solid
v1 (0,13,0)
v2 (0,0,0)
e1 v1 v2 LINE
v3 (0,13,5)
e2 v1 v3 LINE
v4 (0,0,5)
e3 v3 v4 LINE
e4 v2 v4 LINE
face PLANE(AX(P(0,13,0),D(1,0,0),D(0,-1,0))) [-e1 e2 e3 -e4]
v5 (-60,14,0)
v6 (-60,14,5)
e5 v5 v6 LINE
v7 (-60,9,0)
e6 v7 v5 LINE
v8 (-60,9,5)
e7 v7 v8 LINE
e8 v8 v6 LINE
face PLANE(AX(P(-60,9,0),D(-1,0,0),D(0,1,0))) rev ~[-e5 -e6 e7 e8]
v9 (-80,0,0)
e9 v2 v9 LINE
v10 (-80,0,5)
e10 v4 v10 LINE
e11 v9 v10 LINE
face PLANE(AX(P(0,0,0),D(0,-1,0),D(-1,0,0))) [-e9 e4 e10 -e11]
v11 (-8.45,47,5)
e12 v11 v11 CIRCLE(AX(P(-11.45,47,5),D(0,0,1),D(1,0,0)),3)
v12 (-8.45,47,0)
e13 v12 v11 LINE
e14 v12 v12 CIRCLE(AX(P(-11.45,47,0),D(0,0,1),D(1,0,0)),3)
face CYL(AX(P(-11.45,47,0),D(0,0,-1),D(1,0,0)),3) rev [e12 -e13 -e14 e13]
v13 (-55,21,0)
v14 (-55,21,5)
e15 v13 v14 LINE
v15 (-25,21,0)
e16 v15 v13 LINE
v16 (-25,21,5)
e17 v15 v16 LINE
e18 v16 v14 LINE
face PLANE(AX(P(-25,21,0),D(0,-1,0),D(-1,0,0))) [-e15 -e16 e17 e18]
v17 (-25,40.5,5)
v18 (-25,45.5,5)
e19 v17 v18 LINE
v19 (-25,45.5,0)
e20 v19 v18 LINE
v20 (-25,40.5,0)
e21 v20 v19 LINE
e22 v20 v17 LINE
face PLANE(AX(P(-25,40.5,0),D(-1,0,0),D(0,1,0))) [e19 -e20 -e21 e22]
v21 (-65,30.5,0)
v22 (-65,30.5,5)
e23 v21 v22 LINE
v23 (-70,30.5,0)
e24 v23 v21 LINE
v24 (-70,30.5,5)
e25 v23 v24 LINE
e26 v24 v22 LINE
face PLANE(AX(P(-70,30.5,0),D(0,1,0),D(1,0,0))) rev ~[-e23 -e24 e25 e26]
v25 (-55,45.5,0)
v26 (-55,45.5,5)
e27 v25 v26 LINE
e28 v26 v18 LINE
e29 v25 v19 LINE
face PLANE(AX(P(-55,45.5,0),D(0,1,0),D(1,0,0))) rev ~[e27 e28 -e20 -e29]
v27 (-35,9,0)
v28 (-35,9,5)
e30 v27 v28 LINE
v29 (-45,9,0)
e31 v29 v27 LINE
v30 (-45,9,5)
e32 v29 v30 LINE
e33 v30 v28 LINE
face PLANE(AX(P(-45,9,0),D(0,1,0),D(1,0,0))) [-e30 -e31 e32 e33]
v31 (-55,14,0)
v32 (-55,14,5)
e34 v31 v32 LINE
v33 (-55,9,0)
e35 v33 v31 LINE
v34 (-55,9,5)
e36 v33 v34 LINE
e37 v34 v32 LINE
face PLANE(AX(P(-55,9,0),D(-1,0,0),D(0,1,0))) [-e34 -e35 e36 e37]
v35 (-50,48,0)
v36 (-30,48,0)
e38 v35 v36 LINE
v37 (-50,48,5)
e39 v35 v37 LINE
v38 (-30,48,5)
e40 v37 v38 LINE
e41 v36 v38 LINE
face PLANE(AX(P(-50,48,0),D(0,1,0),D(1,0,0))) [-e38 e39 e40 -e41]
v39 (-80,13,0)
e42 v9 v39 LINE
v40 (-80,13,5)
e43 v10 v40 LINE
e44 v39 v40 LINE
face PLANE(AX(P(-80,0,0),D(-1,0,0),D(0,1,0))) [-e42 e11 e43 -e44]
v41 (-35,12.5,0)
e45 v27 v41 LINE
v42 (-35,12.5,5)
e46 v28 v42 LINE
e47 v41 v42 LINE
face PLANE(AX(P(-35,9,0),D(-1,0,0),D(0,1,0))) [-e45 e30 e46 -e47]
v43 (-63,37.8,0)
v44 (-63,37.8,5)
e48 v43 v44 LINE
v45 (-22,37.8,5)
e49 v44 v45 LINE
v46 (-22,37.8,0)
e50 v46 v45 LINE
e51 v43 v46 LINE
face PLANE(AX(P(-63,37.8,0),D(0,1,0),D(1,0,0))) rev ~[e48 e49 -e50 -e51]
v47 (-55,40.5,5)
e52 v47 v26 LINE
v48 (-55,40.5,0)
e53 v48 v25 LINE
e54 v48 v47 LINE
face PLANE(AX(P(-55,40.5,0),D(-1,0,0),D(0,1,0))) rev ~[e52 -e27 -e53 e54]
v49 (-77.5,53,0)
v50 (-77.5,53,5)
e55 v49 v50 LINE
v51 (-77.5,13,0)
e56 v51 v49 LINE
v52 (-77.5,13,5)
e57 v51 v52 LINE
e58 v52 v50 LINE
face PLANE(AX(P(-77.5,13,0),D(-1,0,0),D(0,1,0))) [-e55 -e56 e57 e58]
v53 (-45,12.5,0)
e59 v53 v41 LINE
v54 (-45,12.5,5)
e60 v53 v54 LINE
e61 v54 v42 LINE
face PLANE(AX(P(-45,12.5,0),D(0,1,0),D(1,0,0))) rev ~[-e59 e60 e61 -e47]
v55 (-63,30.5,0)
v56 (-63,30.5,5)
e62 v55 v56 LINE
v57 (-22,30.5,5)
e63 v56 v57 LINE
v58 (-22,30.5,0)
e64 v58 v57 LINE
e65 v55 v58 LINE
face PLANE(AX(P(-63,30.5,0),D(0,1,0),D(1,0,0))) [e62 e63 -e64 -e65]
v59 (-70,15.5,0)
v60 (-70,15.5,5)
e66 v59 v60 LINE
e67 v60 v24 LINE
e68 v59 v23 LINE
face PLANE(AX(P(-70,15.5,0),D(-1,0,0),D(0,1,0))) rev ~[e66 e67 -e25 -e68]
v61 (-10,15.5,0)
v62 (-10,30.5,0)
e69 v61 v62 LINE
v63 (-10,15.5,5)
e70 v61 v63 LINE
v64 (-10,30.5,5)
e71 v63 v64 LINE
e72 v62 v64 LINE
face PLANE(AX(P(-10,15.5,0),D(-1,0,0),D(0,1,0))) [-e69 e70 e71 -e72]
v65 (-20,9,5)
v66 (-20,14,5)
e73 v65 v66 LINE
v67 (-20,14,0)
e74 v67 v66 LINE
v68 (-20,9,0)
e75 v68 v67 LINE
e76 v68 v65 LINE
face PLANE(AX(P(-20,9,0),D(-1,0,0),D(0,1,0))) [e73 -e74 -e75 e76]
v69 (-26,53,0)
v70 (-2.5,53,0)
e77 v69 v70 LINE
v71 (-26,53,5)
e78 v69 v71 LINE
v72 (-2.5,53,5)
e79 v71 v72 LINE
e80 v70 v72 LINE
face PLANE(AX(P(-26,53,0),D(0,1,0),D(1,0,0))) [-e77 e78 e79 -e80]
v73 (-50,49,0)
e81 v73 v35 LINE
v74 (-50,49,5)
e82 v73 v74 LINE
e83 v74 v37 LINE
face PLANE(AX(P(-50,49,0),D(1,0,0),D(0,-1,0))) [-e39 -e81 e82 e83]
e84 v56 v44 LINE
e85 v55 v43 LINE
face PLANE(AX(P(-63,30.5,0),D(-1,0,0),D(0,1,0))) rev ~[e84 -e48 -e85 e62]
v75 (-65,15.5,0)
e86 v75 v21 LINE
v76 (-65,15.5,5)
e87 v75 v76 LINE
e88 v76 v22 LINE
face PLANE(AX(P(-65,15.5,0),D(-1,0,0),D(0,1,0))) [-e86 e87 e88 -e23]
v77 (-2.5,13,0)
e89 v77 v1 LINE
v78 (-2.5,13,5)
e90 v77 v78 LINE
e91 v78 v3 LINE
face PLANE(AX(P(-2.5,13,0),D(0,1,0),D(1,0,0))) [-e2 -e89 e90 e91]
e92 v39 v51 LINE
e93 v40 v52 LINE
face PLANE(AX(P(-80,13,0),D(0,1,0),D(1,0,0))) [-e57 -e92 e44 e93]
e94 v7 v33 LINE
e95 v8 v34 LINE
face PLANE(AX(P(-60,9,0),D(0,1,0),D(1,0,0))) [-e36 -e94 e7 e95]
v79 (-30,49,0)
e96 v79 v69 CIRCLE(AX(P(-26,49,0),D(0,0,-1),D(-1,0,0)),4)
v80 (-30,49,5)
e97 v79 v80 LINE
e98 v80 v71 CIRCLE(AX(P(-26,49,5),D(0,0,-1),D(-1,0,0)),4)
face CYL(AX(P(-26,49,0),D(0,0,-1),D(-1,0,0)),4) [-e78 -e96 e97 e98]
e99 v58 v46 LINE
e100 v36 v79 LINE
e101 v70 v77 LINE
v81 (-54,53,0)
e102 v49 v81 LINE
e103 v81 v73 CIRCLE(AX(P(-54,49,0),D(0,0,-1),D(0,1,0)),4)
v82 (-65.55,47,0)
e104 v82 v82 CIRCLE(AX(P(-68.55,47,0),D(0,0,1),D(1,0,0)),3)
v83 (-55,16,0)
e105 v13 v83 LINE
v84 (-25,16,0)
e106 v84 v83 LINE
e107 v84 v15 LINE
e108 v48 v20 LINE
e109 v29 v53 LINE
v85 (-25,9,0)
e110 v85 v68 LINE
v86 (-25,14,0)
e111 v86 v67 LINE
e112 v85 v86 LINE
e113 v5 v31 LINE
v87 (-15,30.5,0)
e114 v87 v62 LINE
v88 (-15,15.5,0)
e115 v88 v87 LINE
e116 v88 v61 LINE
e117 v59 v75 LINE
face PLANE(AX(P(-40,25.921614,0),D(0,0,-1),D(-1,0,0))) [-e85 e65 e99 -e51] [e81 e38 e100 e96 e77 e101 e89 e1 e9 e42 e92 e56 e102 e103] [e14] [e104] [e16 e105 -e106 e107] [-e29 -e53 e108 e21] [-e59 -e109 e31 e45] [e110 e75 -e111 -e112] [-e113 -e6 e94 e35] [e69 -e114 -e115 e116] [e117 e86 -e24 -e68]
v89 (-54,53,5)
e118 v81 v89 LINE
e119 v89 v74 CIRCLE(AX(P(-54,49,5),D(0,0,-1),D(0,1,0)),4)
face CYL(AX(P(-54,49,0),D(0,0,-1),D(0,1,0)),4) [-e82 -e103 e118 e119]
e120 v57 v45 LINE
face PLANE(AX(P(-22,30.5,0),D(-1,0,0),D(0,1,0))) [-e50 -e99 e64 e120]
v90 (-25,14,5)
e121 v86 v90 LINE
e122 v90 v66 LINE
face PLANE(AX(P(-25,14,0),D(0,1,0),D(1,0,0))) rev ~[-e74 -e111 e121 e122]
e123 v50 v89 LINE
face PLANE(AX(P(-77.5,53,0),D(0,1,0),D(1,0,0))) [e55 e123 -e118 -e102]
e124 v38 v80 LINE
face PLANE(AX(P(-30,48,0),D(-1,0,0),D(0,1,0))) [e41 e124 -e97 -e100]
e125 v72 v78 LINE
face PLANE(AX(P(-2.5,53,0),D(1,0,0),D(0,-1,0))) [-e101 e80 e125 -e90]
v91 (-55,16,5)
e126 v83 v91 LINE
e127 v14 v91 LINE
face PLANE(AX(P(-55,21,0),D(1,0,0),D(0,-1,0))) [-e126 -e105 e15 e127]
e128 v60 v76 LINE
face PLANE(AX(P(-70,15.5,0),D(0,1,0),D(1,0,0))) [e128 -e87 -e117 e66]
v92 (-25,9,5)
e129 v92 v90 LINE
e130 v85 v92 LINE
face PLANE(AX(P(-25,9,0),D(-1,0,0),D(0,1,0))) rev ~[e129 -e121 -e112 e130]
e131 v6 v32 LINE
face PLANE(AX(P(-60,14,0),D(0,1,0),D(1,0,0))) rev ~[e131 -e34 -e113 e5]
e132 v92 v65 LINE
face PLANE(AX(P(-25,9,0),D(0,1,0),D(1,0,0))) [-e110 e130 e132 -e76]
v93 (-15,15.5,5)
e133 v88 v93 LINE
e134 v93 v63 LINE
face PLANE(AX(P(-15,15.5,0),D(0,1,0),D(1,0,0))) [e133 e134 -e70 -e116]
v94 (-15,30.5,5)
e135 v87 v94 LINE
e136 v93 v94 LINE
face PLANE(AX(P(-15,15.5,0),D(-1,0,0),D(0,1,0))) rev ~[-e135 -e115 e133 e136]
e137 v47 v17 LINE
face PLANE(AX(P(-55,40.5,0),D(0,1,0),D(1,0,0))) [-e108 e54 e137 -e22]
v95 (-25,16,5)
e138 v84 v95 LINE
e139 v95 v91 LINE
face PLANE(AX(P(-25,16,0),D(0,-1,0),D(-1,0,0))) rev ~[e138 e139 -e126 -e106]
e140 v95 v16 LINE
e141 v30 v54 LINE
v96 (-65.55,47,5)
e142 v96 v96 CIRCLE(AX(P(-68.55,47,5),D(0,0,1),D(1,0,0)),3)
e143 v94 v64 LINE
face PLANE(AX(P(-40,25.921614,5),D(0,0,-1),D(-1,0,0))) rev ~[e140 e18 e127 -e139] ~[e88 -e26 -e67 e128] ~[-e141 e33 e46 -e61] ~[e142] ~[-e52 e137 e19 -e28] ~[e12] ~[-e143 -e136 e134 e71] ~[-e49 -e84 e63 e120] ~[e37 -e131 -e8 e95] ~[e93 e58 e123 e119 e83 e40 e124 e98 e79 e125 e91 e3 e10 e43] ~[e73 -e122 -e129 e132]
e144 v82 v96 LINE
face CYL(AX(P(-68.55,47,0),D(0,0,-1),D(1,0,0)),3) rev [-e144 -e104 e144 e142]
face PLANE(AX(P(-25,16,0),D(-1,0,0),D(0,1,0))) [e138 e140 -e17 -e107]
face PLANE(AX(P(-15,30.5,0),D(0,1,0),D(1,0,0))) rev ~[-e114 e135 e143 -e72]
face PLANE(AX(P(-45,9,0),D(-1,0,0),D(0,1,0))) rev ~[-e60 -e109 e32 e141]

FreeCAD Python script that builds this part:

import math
import FreeCAD as App
import Part
import Sketcher

V = App.Vector
Q = App.Units.Quantity


def add_polygon(sketch, points):
    """Adds a closed chain of lines whose ends are joined by coincident constraints."""
    first, n = sketch.GeometryCount, len(points)
    for a, b in zip(points, points[1:] + points[:1]):
        sketch.addGeometry(Part.LineSegment(App.Vector(*a, 0), App.Vector(*b, 0)), False)
    for i in range(n):
        sketch.addConstraint(Sketcher.Constraint("Coincident", first + i, 2, first + (i + 1) % n, 1))

doc = App.newDocument("Part")
body = doc.addObject("PartDesign::Body", "Body")

sketch1 = body.newObject("Sketcher::SketchObject", "Sketch")
sketch1.AttachmentSupport = (doc.getObject("XY_Plane"), [""])
sketch1.MapMode = "FlatFace"
sketch1.addGeometry(Part.LineSegment(V(-80, 0, 0), V(0, 0, 0)), False)
sketch1.addGeometry(Part.LineSegment(V(0, 0, 0), V(0, 13, 0)), False)
sketch1.addGeometry(Part.LineSegment(V(0, 13, 0), V(-2.5, 13, 0)), False)
sketch1.addGeometry(Part.LineSegment(V(-2.5, 13, 0), V(-2.5, 53, 0)), False)
sketch1.addGeometry(Part.LineSegment(V(-2.5, 53, 0), V(-26, 53, 0)), False)
sketch1.addGeometry(Part.ArcOfCircle(Part.Circle(V(-26, 49, 0), V(0, 0, 1), 4), math.radians(90), math.radians(180)), False)
sketch1.addGeometry(Part.LineSegment(V(-30, 49, 0), V(-30, 48, 0)), False)
sketch1.addGeometry(Part.LineSegment(V(-30, 48, 0), V(-50, 48, 0)), False)
sketch1.addGeometry(Part.LineSegment(V(-50, 48, 0), V(-50, 49, 0)), False)
sketch1.addGeometry(Part.ArcOfCircle(Part.Circle(V(-54, 49, 0), V(0, 0, 1), 4), math.radians(0), math.radians(90)), False)
sketch1.addGeometry(Part.LineSegment(V(-54, 53, 0), V(-77.5, 53, 0)), False)
sketch1.addGeometry(Part.LineSegment(V(-77.5, 53, 0), V(-77.5, 13, 0)), False)
sketch1.addGeometry(Part.LineSegment(V(-77.5, 13, 0), V(-80, 13, 0)), False)
sketch1.addGeometry(Part.LineSegment(V(-80, 13, 0), V(-80, 0, 0)), False)
add_polygon(sketch1, [(-25, 9), (-25, 14), (-20, 14), (-20, 9)])
add_polygon(sketch1, [(-15, 15.5), (-15, 30.5), (-10, 30.5), (-10, 15.5)])
add_polygon(sketch1, [(-45, 9), (-45, 12.5), (-35, 12.5), (-35, 9)])
add_polygon(sketch1, [(-55, 16), (-55, 21), (-25, 21), (-25, 16)])
add_polygon(sketch1, [(-60, 9), (-60, 14), (-55, 14), (-55, 9)])
add_polygon(sketch1, [(-70, 15.5), (-70, 30.5), (-65, 30.5), (-65, 15.5)])
sketch1.addGeometry(Part.Circle(V(-11.4, 47, 0), V(0, 0, 1), 3), False)
add_polygon(sketch1, [(-63, 30.5), (-63, 37.8), (-22, 37.8), (-22, 30.5)])
add_polygon(sketch1, [(-55, 40.5), (-55, 45.5), (-25, 45.5), (-25, 40.5)])
sketch1.addGeometry(Part.Circle(V(-68.5, 47, 0), V(0, 0, 1), 3), False)
sketch1.addConstraint(Sketcher.Constraint("Coincident", 0, 2, 1, 1))
sketch1.addConstraint(Sketcher.Constraint("Coincident", 1, 2, 2, 1))
sketch1.addConstraint(Sketcher.Constraint("Coincident", 2, 2, 3, 1))
sketch1.addConstraint(Sketcher.Constraint("Coincident", 3, 2, 4, 1))
sketch1.addConstraint(Sketcher.Constraint("Tangent", 4, 2, 5, 1))
sketch1.addConstraint(Sketcher.Constraint("Tangent", 5, 2, 6, 1))
sketch1.addConstraint(Sketcher.Constraint("Coincident", 6, 2, 7, 1))
sketch1.addConstraint(Sketcher.Constraint("Coincident", 7, 2, 8, 1))
sketch1.addConstraint(Sketcher.Constraint("Tangent", 8, 2, 9, 1))
sketch1.addConstraint(Sketcher.Constraint("Tangent", 9, 2, 10, 1))
sketch1.addConstraint(Sketcher.Constraint("Coincident", 10, 2, 11, 1))
sketch1.addConstraint(Sketcher.Constraint("Coincident", 11, 2, 12, 1))
sketch1.addConstraint(Sketcher.Constraint("Coincident", 12, 2, 13, 1))
sketch1.addConstraint(Sketcher.Constraint("Coincident", 13, 2, 0, 1))
sketch1.addConstraint(Sketcher.Constraint("Horizontal", 0))
sketch1.addConstraint(Sketcher.Constraint("Vertical", 1))
sketch1.addConstraint(Sketcher.Constraint("Horizontal", 2))
sketch1.addConstraint(Sketcher.Constraint("Vertical", 3))
sketch1.addConstraint(Sketcher.Constraint("Horizontal", 4))
sketch1.addConstraint(Sketcher.Constraint("Vertical", 6))
sketch1.addConstraint(Sketcher.Constraint("Horizontal", 7))
sketch1.addConstraint(Sketcher.Constraint("Vertical", 8))
sketch1.addConstraint(Sketcher.Constraint("Horizontal", 10))
sketch1.addConstraint(Sketcher.Constraint("Vertical", 11))
sketch1.addConstraint(Sketcher.Constraint("Horizontal", 12))
sketch1.addConstraint(Sketcher.Constraint("Vertical", 13))
sketch1.addConstraint(Sketcher.Constraint("Vertical", 14))
sketch1.addConstraint(Sketcher.Constraint("Horizontal", 15))
sketch1.addConstraint(Sketcher.Constraint("Vertical", 16))
sketch1.addConstraint(Sketcher.Constraint("Horizontal", 17))
sketch1.addConstraint(Sketcher.Constraint("Vertical", 18))
sketch1.addConstraint(Sketcher.Constraint("Horizontal", 19))
sketch1.addConstraint(Sketcher.Constraint("Vertical", 20))
sketch1.addConstraint(Sketcher.Constraint("Horizontal", 21))
sketch1.addConstraint(Sketcher.Constraint("Vertical", 22))
sketch1.addConstraint(Sketcher.Constraint("Horizontal", 23))
sketch1.addConstraint(Sketcher.Constraint("Vertical", 24))
sketch1.addConstraint(Sketcher.Constraint("Horizontal", 25))
sketch1.addConstraint(Sketcher.Constraint("Vertical", 26))
sketch1.addConstraint(Sketcher.Constraint("Horizontal", 27))
sketch1.addConstraint(Sketcher.Constraint("Vertical", 28))
sketch1.addConstraint(Sketcher.Constraint("Horizontal", 29))
sketch1.addConstraint(Sketcher.Constraint("Vertical", 30))
sketch1.addConstraint(Sketcher.Constraint("Horizontal", 31))
sketch1.addConstraint(Sketcher.Constraint("Vertical", 32))
sketch1.addConstraint(Sketcher.Constraint("Horizontal", 33))
sketch1.addConstraint(Sketcher.Constraint("Vertical", 34))
sketch1.addConstraint(Sketcher.Constraint("Horizontal", 35))
sketch1.addConstraint(Sketcher.Constraint("Vertical", 36))
sketch1.addConstraint(Sketcher.Constraint("Horizontal", 37))
sketch1.addConstraint(Sketcher.Constraint("Vertical", 39))
sketch1.addConstraint(Sketcher.Constraint("Horizontal", 40))
sketch1.addConstraint(Sketcher.Constraint("Vertical", 41))
sketch1.addConstraint(Sketcher.Constraint("Horizontal", 42))
sketch1.addConstraint(Sketcher.Constraint("Vertical", 43))
sketch1.addConstraint(Sketcher.Constraint("Horizontal", 44))
sketch1.addConstraint(Sketcher.Constraint("Vertical", 45))
sketch1.addConstraint(Sketcher.Constraint("Horizontal", 46))
sketch1.addConstraint(Sketcher.Constraint("Coincident", 0, 2, -1, 1))
sketch1.addConstraint(Sketcher.Constraint("Equal", 5, 9))
sketch1.addConstraint(Sketcher.Constraint("Equal", 38, 47))
sketch1.addConstraint(Sketcher.Constraint("Horizontal", 5, 3, 9, 3))
sketch1.addConstraint(Sketcher.Constraint("Horizontal", 38, 3, 47, 3))
sketch1.addConstraint(Sketcher.Constraint("Horizontal", 2, 2, 11, 2))
sketch1.addConstraint(Sketcher.Constraint("Horizontal", 17, 2, 24, 2))
sketch1.addConstraint(Sketcher.Constraint("Horizontal", 15, 2, 30, 2))
sketch1.addConstraint(Sketcher.Constraint("Horizontal", 25, 2, 32, 2))
sketch1.addConstraint(Sketcher.Constraint("Horizontal", 19, 2, 34, 2))
sketch1.addConstraint(Sketcher.Constraint("Horizontal", 21, 2, 36, 2))
sketch1.addConstraint(Sketcher.Constraint("Horizontal", 35, 2, 41, 2))
sketch1.addConstraint(Sketcher.Constraint("Vertical", 17, 2, 27, 2))
sketch1.addConstraint(Sketcher.Constraint("Vertical", 29, 2, 31, 2))
sketch1.addConstraint(Sketcher.Constraint("Vertical", 32, 2, 43, 2))
sketch1.addConstraint(Sketcher.Constraint("Vertical", 28, 2, 44, 2))
sketch1.addConstraint(Sketcher.Constraint("Equal", 4, 10))
sketch1.addConstraint(Sketcher.Constraint("Equal", 2, 12))
sketch1.addConstraint(Sketcher.Constraint("Equal", 17, 19))
sketch1.addConstraint(Sketcher.Constraint("Equal", 21, 31))
sketch1.addConstraint(Sketcher.Constraint("Equal", 33, 35))
sketch1.addConstraint(Sketcher.Constraint("Equal", 37, 14))
sketch1.addConstraint(Sketcher.Constraint("Equal", 16, 26))
sketch1.addConstraint(Sketcher.Constraint("Equal", 32, 43))
sketch1.addConstraint(Sketcher.Constraint("Diameter", 38, Q("6 mm")))
sketch1.addConstraint(Sketcher.Constraint("Radius", 5, Q("4 mm")))
sketch1.addConstraint(Sketcher.Constraint("DistanceX", 0, 1, 0, 2, Q("80 mm")))
sketch1.addConstraint(Sketcher.Constraint("DistanceX", 7, 2, 7, 1, Q("20 mm")))
sketch1.addConstraint(Sketcher.Constraint("DistanceX", 15, 1, 15, 2, Q("5 mm")))
sketch1.addConstraint(Sketcher.Constraint("DistanceX", 23, 1, 23, 2, Q("10 mm")))
sketch1.addConstraint(Sketcher.Constraint("DistanceX", 27, 1, 27, 2, Q("30 mm")))
sketch1.addConstraint(Sketcher.Constraint("DistanceX", 40, 1, 40, 2, Q("41 mm")))
sketch1.addConstraint(Sketcher.Constraint("DistanceY", 1, 1, 1, 2, Q("13 mm")))
sketch1.addConstraint(Sketcher.Constraint("DistanceY", 3, 1, 3, 2, Q("40 mm")))
sketch1.addConstraint(Sketcher.Constraint("DistanceY", 6, 2, 6, 1, Q("1 mm")))
sketch1.addConstraint(Sketcher.Constraint("DistanceY", 18, 1, 18, 2, Q("15 mm")))
sketch1.addConstraint(Sketcher.Constraint("DistanceX", 2, 2, 2, 1, Q("2.5 mm")))
sketch1.addConstraint(Sketcher.Constraint("DistanceY", 22, 1, 22, 2, Q("3.5 mm")))
sketch1.addConstraint(Sketcher.Constraint("DistanceY", 39, 1, 39, 2, Q("7.3 mm")))
sketch1.addConstraint(Sketcher.Constraint("DistanceY", -1, 1, 38, 3, Q("47 mm")))
sketch1.addConstraint(Sketcher.Constraint("DistanceX", 14, 2, -1, 1, Q("25 mm")))
sketch1.addConstraint(Sketcher.Constraint("DistanceY", -1, 1, 14, 2, Q("14 mm")))
sketch1.addConstraint(Sketcher.Constraint("DistanceX", 18, 2, -1, 1, Q("15 mm")))
sketch1.addConstraint(Sketcher.Constraint("DistanceX", 22, 2, -1, 1, Q("45 mm")))
sketch1.addConstraint(Sketcher.Constraint("DistanceY", -1, 1, 26, 2, Q("21 mm")))
sketch1.addConstraint(Sketcher.Constraint("DistanceX", 34, 2, -1, 1, Q("70 mm")))
sketch1.addConstraint(Sketcher.Constraint("DistanceX", 39, 2, -1, 1, Q("63 mm")))
sketch1.addConstraint(Sketcher.Constraint("DistanceY", 22, 2, 21, 2, Q("3 mm")))
sketch1.addConstraint(Sketcher.Constraint("DistanceY", -1, 1, 43, 2, Q("45.5 mm")))
sketch1.addConstraint(Sketcher.Constraint("DistanceX", 47, 3, 38, 3, Q("57.1 mm")))
sketch1.addConstraint(Sketcher.Constraint("DistanceX", 38, 3, -1, 1, Q("11.45 mm")))
pad1 = body.newObject("PartDesign::Pad", "Pad")
pad1.Profile = sketch1
pad1.Length = 5

doc.recompute()
